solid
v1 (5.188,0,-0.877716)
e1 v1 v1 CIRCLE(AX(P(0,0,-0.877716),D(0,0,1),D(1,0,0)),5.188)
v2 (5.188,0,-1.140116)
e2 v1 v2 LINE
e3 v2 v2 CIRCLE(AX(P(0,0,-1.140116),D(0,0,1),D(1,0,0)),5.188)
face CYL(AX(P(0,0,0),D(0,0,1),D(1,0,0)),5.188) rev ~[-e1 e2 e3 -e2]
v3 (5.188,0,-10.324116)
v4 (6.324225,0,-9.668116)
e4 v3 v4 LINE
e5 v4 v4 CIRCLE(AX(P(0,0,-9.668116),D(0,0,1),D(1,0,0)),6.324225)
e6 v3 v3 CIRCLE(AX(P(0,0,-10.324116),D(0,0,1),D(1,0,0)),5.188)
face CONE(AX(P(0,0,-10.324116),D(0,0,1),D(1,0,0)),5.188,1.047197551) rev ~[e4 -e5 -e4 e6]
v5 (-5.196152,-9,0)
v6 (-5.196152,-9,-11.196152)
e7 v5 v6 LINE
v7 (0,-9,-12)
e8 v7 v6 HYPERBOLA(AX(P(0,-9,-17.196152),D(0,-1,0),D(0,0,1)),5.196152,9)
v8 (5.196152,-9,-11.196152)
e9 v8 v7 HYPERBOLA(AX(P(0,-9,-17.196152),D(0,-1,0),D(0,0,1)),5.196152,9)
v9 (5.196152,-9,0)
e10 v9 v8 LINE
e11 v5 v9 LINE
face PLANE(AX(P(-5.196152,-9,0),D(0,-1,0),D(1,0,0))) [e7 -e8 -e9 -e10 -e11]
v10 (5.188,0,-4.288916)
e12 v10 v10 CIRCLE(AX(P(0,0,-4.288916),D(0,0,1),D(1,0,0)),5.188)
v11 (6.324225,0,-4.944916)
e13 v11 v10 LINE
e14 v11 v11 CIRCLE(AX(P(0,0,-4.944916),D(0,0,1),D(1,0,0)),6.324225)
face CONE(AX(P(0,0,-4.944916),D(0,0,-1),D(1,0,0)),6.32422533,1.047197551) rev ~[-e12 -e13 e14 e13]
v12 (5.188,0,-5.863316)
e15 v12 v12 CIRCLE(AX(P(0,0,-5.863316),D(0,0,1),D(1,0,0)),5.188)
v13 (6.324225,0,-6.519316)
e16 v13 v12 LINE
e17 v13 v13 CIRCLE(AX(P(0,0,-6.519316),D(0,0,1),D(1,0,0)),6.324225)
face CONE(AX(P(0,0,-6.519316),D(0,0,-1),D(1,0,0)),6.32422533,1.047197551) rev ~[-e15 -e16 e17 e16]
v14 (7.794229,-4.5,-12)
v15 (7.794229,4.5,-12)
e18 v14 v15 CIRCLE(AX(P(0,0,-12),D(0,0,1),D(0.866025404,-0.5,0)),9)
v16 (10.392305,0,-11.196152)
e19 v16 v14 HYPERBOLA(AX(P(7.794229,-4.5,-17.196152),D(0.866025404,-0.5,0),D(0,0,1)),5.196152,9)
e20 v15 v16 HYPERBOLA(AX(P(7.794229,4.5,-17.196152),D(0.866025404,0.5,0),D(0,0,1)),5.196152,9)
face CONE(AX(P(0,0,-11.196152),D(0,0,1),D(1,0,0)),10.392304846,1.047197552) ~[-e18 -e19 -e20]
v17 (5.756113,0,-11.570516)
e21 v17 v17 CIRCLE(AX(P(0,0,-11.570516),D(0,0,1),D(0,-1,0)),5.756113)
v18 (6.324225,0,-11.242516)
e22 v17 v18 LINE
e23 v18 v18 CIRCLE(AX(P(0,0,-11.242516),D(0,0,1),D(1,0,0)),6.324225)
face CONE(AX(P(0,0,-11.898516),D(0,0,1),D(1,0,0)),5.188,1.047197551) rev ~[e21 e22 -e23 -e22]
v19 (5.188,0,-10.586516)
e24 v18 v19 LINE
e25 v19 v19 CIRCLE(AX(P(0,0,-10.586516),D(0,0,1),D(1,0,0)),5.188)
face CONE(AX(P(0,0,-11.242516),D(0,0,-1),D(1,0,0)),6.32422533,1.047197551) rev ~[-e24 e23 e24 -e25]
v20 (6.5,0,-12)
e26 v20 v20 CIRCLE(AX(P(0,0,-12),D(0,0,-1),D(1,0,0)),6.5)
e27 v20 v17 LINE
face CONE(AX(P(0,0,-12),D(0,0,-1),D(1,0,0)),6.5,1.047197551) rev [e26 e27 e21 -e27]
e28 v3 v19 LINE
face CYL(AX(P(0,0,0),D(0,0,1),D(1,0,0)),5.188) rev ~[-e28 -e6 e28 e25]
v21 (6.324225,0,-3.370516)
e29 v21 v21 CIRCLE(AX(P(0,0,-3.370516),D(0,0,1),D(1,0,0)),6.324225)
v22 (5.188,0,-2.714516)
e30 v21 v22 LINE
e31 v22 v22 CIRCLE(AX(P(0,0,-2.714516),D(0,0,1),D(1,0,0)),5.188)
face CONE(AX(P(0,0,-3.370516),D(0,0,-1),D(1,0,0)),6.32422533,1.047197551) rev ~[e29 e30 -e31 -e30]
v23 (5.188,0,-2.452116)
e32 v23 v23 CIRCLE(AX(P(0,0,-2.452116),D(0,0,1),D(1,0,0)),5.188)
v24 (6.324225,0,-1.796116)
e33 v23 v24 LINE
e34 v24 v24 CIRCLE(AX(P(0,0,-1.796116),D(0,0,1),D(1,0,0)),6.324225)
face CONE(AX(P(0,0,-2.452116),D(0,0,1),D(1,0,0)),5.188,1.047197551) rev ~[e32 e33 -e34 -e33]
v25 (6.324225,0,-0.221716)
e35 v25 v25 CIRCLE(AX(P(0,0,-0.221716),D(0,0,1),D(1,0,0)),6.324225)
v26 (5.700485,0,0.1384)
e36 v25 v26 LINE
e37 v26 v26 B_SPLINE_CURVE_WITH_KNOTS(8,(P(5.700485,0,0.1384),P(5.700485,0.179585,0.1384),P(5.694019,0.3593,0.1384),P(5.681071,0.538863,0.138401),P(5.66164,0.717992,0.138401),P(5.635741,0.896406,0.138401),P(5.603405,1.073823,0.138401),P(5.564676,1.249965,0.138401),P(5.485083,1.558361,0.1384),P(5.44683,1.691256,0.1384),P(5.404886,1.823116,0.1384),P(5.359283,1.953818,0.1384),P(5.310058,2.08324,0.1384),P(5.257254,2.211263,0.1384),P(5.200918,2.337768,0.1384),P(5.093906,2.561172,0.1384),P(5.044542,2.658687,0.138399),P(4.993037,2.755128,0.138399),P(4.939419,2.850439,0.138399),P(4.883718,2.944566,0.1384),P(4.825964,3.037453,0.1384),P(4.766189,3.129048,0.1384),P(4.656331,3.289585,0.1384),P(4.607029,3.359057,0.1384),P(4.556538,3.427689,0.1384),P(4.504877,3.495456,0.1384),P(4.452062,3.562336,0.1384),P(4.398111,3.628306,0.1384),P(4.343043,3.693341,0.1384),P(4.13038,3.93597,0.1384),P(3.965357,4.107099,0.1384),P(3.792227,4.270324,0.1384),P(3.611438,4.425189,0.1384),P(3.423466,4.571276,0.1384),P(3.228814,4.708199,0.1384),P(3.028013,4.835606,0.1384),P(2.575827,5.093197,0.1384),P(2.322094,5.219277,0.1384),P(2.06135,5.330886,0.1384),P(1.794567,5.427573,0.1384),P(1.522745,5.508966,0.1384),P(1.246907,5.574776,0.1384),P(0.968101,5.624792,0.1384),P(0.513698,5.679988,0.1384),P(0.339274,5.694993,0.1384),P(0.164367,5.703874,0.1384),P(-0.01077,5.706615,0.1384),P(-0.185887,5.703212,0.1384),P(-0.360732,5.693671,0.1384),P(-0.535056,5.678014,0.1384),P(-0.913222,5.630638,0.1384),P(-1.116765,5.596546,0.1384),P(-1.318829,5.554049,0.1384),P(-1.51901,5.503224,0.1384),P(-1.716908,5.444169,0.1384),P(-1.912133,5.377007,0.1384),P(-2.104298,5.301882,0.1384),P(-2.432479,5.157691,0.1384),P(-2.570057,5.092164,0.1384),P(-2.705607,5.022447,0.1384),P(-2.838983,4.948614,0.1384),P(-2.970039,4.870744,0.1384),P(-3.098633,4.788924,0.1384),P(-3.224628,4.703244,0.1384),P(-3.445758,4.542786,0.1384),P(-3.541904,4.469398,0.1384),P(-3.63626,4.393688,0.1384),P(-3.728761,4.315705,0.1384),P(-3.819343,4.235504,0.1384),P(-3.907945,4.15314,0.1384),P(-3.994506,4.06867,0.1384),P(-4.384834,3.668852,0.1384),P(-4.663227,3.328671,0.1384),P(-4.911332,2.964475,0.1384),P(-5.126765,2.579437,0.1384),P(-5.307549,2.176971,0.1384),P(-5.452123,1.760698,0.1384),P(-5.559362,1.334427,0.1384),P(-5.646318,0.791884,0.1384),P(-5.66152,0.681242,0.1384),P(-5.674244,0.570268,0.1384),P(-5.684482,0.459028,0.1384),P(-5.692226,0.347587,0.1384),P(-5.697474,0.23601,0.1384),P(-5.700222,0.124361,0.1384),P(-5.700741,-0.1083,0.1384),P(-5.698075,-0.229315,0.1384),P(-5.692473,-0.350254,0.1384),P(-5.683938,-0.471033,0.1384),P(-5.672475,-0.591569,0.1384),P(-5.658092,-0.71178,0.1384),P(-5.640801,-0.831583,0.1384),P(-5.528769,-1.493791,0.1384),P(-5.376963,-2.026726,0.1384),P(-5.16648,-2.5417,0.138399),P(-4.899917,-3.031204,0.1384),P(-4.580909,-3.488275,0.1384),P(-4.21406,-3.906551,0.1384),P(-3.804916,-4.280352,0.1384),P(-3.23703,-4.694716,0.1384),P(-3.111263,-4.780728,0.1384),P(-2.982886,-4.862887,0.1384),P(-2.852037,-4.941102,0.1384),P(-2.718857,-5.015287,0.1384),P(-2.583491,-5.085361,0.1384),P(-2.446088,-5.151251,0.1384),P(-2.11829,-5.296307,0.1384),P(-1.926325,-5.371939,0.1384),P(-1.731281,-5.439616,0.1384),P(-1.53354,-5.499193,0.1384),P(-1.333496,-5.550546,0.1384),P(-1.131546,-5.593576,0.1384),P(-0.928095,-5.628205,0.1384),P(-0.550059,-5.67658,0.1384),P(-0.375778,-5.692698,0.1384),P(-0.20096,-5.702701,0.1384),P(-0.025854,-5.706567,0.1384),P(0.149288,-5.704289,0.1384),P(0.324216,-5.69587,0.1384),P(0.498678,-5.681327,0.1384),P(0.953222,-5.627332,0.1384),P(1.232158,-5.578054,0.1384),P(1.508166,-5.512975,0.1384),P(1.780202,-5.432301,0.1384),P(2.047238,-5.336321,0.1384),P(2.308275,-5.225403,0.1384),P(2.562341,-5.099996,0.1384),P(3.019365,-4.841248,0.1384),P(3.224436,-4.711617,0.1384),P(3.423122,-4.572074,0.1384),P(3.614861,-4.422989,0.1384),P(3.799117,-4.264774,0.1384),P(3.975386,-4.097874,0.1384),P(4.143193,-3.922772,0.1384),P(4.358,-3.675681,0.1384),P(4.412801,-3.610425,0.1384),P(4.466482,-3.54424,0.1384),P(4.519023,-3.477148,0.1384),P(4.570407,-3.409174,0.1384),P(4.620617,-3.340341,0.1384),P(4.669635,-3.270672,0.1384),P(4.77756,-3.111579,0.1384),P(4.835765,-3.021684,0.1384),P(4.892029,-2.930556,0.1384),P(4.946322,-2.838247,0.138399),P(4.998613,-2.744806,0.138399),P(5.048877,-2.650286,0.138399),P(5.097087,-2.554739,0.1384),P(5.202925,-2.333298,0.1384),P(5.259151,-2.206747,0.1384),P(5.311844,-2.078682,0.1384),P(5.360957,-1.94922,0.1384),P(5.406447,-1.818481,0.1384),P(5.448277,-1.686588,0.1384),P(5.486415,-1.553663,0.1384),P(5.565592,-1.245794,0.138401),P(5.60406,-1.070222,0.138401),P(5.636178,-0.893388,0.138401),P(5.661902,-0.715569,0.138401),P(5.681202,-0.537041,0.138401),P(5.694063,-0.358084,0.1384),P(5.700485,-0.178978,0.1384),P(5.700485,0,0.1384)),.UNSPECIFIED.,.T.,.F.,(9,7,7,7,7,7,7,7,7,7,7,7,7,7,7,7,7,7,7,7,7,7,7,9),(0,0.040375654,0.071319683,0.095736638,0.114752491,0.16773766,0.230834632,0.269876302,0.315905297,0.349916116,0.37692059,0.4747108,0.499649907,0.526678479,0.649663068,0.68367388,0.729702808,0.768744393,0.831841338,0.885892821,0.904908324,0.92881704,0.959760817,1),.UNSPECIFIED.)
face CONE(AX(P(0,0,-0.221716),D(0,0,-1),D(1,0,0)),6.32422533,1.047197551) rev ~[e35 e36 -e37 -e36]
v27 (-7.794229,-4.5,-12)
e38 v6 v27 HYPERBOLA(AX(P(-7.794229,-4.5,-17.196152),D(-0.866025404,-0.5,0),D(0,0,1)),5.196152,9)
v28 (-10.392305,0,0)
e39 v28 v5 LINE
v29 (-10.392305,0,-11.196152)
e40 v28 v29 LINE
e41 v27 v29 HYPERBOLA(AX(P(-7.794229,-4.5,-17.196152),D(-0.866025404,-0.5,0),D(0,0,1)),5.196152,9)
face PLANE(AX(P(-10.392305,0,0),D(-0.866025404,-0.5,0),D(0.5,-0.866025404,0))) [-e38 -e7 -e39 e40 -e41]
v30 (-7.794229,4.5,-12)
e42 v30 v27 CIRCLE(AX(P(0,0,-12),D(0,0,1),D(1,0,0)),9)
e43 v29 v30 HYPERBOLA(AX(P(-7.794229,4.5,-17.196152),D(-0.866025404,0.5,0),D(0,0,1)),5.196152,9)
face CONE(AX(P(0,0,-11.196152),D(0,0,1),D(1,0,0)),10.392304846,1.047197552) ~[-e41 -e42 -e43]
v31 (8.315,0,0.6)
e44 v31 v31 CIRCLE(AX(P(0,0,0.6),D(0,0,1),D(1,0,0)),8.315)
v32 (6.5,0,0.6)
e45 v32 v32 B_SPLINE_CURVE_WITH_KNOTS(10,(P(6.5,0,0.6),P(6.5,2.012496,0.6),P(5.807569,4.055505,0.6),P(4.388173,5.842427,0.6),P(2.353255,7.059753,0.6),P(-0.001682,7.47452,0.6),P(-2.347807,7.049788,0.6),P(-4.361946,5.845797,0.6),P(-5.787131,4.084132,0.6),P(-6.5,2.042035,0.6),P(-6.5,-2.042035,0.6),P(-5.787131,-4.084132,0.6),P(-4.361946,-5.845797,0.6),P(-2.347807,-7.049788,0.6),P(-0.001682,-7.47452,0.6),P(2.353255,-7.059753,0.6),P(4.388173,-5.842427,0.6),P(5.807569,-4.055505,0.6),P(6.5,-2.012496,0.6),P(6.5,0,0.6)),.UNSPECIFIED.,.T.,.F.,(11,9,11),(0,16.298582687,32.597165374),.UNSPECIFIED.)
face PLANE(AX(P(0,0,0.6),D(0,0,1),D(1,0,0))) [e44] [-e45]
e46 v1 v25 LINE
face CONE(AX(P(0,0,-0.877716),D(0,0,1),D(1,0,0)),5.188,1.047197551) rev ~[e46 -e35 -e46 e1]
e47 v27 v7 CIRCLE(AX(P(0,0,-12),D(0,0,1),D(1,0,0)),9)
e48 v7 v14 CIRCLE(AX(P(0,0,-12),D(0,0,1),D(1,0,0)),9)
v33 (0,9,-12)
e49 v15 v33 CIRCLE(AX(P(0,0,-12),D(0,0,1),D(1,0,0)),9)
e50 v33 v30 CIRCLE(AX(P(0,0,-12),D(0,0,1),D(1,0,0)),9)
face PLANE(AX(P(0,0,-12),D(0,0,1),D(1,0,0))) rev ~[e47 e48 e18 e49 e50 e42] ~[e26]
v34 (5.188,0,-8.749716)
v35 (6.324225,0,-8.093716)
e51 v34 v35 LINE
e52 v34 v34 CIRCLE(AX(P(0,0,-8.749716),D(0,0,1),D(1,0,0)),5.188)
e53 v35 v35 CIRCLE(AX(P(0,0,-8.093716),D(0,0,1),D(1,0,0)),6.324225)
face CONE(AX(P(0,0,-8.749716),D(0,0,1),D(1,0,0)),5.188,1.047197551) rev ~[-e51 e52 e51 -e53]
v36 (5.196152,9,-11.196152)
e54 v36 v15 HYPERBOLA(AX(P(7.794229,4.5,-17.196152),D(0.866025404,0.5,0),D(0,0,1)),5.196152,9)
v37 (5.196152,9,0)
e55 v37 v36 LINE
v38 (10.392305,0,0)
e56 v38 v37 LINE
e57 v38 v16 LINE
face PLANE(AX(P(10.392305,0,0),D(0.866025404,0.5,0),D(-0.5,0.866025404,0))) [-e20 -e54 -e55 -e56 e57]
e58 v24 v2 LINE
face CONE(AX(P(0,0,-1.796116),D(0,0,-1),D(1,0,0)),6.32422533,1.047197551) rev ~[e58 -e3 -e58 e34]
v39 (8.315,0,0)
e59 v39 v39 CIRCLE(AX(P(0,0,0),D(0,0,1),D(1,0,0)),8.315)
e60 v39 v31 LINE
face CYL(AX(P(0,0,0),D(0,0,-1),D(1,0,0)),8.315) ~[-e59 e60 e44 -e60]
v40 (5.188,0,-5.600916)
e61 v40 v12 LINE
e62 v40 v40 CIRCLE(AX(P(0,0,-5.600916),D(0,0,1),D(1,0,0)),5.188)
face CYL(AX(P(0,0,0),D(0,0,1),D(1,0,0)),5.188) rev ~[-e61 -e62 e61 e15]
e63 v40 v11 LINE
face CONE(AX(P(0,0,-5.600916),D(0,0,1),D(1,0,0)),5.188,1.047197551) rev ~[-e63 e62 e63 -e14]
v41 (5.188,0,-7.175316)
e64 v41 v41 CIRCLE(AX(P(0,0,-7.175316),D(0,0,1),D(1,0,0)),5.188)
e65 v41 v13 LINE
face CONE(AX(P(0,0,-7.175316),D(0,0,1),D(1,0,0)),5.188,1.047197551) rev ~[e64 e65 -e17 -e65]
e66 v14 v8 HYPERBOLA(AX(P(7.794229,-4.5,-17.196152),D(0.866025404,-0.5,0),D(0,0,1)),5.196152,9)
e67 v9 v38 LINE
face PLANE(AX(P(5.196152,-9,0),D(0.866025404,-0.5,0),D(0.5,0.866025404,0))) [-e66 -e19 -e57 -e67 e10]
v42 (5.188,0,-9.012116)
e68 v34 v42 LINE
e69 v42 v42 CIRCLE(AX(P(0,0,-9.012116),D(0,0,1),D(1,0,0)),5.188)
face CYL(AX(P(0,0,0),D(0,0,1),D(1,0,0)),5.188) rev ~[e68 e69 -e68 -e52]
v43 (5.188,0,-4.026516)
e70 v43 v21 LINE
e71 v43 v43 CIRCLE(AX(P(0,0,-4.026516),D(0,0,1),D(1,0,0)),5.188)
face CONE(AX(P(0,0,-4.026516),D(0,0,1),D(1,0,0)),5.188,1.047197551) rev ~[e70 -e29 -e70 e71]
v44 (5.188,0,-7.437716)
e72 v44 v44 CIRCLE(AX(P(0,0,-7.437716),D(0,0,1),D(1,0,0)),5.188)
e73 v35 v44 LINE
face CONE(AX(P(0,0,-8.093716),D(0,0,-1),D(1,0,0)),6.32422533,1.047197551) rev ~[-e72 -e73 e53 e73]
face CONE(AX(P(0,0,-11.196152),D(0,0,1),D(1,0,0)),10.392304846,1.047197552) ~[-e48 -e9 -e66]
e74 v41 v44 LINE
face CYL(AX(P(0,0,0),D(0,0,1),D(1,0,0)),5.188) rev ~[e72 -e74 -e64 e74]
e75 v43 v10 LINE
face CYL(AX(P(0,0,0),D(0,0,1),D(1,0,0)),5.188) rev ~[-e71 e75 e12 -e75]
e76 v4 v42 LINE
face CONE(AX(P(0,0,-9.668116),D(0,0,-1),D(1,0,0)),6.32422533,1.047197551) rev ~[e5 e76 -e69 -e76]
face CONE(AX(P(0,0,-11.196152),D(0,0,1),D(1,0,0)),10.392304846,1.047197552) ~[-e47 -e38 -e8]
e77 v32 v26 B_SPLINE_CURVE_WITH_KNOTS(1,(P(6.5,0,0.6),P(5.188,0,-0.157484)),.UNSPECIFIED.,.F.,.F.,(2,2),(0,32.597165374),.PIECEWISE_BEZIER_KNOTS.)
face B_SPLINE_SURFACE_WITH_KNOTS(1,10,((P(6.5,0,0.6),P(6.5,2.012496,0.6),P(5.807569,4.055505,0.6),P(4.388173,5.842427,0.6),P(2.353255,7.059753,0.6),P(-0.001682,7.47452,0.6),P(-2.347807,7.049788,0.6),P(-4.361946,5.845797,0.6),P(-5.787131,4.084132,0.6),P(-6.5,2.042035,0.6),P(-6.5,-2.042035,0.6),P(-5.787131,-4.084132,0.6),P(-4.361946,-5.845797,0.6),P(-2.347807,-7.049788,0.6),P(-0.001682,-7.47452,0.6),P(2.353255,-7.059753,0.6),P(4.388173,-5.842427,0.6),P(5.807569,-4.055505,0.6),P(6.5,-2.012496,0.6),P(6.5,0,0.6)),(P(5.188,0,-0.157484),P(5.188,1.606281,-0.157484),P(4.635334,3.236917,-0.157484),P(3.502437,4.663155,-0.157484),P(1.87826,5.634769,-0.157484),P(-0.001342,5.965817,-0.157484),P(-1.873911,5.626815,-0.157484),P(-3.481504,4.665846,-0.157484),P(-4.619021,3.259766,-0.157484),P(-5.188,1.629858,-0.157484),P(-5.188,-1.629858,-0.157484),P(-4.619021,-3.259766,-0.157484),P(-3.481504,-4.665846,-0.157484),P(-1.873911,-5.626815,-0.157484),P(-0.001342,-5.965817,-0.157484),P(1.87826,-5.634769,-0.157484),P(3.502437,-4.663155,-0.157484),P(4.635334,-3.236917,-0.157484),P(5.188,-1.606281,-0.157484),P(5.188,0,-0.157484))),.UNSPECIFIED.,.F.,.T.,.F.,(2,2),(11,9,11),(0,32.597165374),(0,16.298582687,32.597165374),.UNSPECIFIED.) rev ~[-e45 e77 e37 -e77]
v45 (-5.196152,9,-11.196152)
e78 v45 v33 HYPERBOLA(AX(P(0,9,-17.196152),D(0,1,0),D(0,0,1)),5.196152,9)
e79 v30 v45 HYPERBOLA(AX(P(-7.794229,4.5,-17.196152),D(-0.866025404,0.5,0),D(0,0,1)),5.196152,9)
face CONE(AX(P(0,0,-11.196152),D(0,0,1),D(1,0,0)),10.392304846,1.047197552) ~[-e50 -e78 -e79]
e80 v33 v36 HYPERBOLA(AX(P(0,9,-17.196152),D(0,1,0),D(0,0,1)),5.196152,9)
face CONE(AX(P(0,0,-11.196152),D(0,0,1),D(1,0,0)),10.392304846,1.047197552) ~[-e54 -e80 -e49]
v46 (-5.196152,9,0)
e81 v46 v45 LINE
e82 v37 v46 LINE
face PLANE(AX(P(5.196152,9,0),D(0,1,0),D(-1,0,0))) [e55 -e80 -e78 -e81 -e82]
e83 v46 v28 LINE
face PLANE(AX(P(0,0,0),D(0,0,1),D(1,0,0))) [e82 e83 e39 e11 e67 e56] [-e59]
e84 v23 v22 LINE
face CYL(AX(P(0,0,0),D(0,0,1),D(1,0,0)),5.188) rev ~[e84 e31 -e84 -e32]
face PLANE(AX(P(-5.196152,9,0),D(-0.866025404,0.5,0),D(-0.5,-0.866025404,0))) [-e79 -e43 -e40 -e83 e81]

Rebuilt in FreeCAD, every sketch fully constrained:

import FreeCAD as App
import Part
import Sketcher
Q = App.Units.Quantity


def edges_at(feature, points):
    """Names of the edges that pass closest to the given points."""
    edges = feature.Shape.Edges
    near = lambda p: min(range(len(edges)), key=lambda i: edges[i].distToShape(Part.Vertex(*p))[0])
    return sorted({f"Edge{near(p) + 1}" for p in points})


def add_polygon(sketch, points):
    """Adds a closed chain of lines whose ends are joined by coincident constraints."""
    first, n = sketch.GeometryCount, len(points)
    for a, b in zip(points, points[1:] + points[:1]):
        sketch.addGeometry(Part.LineSegment(App.Vector(*a, 0), App.Vector(*b, 0)), False)
    for i in range(n):
        sketch.addConstraint(Sketcher.Constraint("Coincident", first + i, 2, first + (i + 1) % n, 1))

doc = App.newDocument("Part")
body = doc.addObject("PartDesign::Body", "Body")

# Sketch on XY plane
sketch1 = body.newObject("Sketcher::SketchObject", "Sketch")
sketch1.AttachmentSupport = (doc.getObject("XY_Plane"), [""])
sketch1.MapMode = "FlatFace"
add_polygon(sketch1, [(5, -9), (10, 0), (5, 9), (-5, 9), (-10, 0), (-5, -9)])  # lines 0-5
sketch1.addGeometry(Part.Circle(App.Vector(0, 0, 0), App.Vector(0, 0, 1), 5), False)  # 6
sketch1.addConstraint(Sketcher.Constraint("Horizontal", 2))
sketch1.addConstraint(Sketcher.Constraint("Horizontal", 5))
sketch1.addConstraint(Sketcher.Constraint("Coincident", 6, 3, -1, 1))
sketch1.addConstraint(Sketcher.Constraint("Symmetric", 0, 2, 3, 2, -1, 1))
sketch1.addConstraint(Sketcher.Constraint("Symmetric", 1, 2, 4, 2, -1, 1))
sketch1.addConstraint(Sketcher.Constraint("PointOnObject", 0, 2, -1))
sketch1.addConstraint(Sketcher.Constraint("Parallel", 0, 3))
sketch1.addConstraint(Sketcher.Constraint("Vertical", 2, 2, 4, 2))
sketch1.addConstraint(Sketcher.Constraint("Angle", 0, Q("60 deg")))
sketch1.addConstraint(Sketcher.Constraint("Diameter", 6, Q("10.376 mm")))
sketch1.addConstraint(Sketcher.Constraint("DistanceY", -1, 1, 1, 2, Q("9 mm")))
sketch1.addConstraint(Sketcher.Constraint("DistanceX", 2, 2, 2, 1, Q("10.392305 mm")))
pad1 = body.newObject("PartDesign::Pad", "Pad")
pad1.Profile = sketch1
pad1.Length = 12
pad1.Reversed = True

# Sketch on XZ plane
sketch2 = body.newObject("Sketcher::SketchObject", "Sketch001")
sketch2.AttachmentSupport = (doc.getObject("XZ_Plane"), [""])
sketch2.MapMode = "FlatFace"
add_polygon(sketch2, [(10.4, -12), (9, -12), (10.4, -11.2)])  # lines 0-2
sketch2.addConstraint(Sketcher.Constraint("Horizontal", 0))
sketch2.addConstraint(Sketcher.Constraint("Vertical", 2))
sketch2.addConstraint(Sketcher.Constraint("Angle", 1, Q("30 deg")))
sketch2.addConstraint(Sketcher.Constraint("DistanceX", -1, 1, 0, 2, Q("9 mm")))
sketch2.addConstraint(Sketcher.Constraint("DistanceY", 0, 2, -1, 1, Q("12 mm")))
sketch2.addConstraint(Sketcher.Constraint("DistanceX", 0, 2, 0, 1, Q("1.392305 mm")))
groove = body.newObject("PartDesign::Groove", "Groove")
groove.Profile = sketch2
groove.ReferenceAxis = (sketch2, ["V_Axis"])
groove.Angle = 360

# Sketch on XZ plane
sketch3 = body.newObject("Sketcher::SketchObject", "Sketch002")
sketch3.AttachmentSupport = (doc.getObject("XZ_Plane"), [""])
sketch3.MapMode = "FlatFace"
add_polygon(sketch3, [(6.5, -12), (5.2, -12), (5.2, -11.2)])  # lines 0-2
sketch3.addConstraint(Sketcher.Constraint("Horizontal", 0))
sketch3.addConstraint(Sketcher.Constraint("Vertical", 1))
sketch3.addConstraint(Sketcher.Constraint("Angle", 2, Q("-30 deg")))
sketch3.addConstraint(Sketcher.Constraint("DistanceY", 0, 2, -1, 1, Q("12 mm")))
sketch3.addConstraint(Sketcher.Constraint("DistanceX", -1, 1, 2, 2, Q("6.5 mm")))
sketch3.addConstraint(Sketcher.Constraint("DistanceX", 0, 2, 0, 1, Q("1.312 mm")))
groove2 = body.newObject("PartDesign::Groove", "Groove001")
groove2.Profile = sketch3
groove2.ReferenceAxis = (sketch3, ["V_Axis"])
groove2.Angle = 360

# Sketch on XY plane
sketch4 = body.newObject("Sketcher::SketchObject", "Sketch003")
sketch4.AttachmentSupport = (doc.getObject("XY_Plane"), [""])
sketch4.MapMode = "FlatFace"
sketch4.addGeometry(Part.Circle(App.Vector(0, 0, 0), App.Vector(0, 0, 1), 8), False)
sketch4.addGeometry(Part.Circle(App.Vector(0, 0, 0), App.Vector(0, 0, 1), 5), False)
sketch4.addConstraint(Sketcher.Constraint("Coincident", 0, 3, -1, 1))
sketch4.addConstraint(Sketcher.Constraint("Coincident", 1, 3, -1, 1))
sketch4.addConstraint(Sketcher.Constraint("Diameter", 0, Q("16.63 mm")))
sketch4.addConstraint(Sketcher.Constraint("Diameter", 1, Q("10.376 mm")))
pad2 = body.newObject("PartDesign::Pad", "Pad001")
pad2.Profile = sketch4
pad2.Length = 0.6
doc.recompute()

chamfer = body.newObject("PartDesign::Chamfer", "Chamfer")
chamfer.Base = (pad2, edges_at(pad2, [(-5.188, 0, 0.6)]))
chamfer.ChamferType = "Two distances"
chamfer.Size = 1.312
chamfer.Size2 = 0.757484

# Sketch on XZ plane
sketch5 = body.newObject("Sketcher::SketchObject", "Sketch004")
sketch5.AttachmentSupport = (doc.getObject("XZ_Plane"), [""])
sketch5.MapMode = "FlatFace"
add_polygon(sketch5, [(5.2, -11.9), (3.9, -11.9), (3.9, -10.6), (5.2, -10.6), (6.3, -11.2)])  # lines 0-4
sketch5.addConstraint(Sketcher.Constraint("Horizontal", 0))
sketch5.addConstraint(Sketcher.Constraint("Vertical", 1))
sketch5.addConstraint(Sketcher.Constraint("Horizontal", 2))
sketch5.addConstraint(Sketcher.Constraint("Vertical", 2, 2, 4, 2))
sketch5.addConstraint(Sketcher.Constraint("Equal", 2, 1))
sketch5.addConstraint(Sketcher.Constraint("Equal", 3, 4))
sketch5.addConstraint(Sketcher.Constraint("Angle", 3, Q("-30 deg")))
sketch5.addConstraint(Sketcher.Constraint("DistanceX", 0, 2, 0, 1, Q("1.312 mm")))
sketch5.addConstraint(Sketcher.Constraint("DistanceX", -1, 1, 0, 2, Q("3.876 mm")))
sketch5.addConstraint(Sketcher.Constraint("DistanceY", 0, 2, -1, 1, Q("11.898516 mm")))
groove3 = body.newObject("PartDesign::Groove", "Groove002")
groove3.Profile = sketch5
groove3.ReferenceAxis = (sketch5, ["V_Axis"])
groove3.Angle = 360
doc.recompute()

linearpattern = body.newObject("PartDesign::LinearPattern", "LinearPattern")
linearpattern.Originals = [groove3]
linearpattern.Direction = (doc.getObject("Z_Axis"), [""])
linearpattern.Mode = "offset"
linearpattern.Offset = 1.5744
linearpattern.Occurrences = 8
body.Tip = linearpattern

doc.recompute()
